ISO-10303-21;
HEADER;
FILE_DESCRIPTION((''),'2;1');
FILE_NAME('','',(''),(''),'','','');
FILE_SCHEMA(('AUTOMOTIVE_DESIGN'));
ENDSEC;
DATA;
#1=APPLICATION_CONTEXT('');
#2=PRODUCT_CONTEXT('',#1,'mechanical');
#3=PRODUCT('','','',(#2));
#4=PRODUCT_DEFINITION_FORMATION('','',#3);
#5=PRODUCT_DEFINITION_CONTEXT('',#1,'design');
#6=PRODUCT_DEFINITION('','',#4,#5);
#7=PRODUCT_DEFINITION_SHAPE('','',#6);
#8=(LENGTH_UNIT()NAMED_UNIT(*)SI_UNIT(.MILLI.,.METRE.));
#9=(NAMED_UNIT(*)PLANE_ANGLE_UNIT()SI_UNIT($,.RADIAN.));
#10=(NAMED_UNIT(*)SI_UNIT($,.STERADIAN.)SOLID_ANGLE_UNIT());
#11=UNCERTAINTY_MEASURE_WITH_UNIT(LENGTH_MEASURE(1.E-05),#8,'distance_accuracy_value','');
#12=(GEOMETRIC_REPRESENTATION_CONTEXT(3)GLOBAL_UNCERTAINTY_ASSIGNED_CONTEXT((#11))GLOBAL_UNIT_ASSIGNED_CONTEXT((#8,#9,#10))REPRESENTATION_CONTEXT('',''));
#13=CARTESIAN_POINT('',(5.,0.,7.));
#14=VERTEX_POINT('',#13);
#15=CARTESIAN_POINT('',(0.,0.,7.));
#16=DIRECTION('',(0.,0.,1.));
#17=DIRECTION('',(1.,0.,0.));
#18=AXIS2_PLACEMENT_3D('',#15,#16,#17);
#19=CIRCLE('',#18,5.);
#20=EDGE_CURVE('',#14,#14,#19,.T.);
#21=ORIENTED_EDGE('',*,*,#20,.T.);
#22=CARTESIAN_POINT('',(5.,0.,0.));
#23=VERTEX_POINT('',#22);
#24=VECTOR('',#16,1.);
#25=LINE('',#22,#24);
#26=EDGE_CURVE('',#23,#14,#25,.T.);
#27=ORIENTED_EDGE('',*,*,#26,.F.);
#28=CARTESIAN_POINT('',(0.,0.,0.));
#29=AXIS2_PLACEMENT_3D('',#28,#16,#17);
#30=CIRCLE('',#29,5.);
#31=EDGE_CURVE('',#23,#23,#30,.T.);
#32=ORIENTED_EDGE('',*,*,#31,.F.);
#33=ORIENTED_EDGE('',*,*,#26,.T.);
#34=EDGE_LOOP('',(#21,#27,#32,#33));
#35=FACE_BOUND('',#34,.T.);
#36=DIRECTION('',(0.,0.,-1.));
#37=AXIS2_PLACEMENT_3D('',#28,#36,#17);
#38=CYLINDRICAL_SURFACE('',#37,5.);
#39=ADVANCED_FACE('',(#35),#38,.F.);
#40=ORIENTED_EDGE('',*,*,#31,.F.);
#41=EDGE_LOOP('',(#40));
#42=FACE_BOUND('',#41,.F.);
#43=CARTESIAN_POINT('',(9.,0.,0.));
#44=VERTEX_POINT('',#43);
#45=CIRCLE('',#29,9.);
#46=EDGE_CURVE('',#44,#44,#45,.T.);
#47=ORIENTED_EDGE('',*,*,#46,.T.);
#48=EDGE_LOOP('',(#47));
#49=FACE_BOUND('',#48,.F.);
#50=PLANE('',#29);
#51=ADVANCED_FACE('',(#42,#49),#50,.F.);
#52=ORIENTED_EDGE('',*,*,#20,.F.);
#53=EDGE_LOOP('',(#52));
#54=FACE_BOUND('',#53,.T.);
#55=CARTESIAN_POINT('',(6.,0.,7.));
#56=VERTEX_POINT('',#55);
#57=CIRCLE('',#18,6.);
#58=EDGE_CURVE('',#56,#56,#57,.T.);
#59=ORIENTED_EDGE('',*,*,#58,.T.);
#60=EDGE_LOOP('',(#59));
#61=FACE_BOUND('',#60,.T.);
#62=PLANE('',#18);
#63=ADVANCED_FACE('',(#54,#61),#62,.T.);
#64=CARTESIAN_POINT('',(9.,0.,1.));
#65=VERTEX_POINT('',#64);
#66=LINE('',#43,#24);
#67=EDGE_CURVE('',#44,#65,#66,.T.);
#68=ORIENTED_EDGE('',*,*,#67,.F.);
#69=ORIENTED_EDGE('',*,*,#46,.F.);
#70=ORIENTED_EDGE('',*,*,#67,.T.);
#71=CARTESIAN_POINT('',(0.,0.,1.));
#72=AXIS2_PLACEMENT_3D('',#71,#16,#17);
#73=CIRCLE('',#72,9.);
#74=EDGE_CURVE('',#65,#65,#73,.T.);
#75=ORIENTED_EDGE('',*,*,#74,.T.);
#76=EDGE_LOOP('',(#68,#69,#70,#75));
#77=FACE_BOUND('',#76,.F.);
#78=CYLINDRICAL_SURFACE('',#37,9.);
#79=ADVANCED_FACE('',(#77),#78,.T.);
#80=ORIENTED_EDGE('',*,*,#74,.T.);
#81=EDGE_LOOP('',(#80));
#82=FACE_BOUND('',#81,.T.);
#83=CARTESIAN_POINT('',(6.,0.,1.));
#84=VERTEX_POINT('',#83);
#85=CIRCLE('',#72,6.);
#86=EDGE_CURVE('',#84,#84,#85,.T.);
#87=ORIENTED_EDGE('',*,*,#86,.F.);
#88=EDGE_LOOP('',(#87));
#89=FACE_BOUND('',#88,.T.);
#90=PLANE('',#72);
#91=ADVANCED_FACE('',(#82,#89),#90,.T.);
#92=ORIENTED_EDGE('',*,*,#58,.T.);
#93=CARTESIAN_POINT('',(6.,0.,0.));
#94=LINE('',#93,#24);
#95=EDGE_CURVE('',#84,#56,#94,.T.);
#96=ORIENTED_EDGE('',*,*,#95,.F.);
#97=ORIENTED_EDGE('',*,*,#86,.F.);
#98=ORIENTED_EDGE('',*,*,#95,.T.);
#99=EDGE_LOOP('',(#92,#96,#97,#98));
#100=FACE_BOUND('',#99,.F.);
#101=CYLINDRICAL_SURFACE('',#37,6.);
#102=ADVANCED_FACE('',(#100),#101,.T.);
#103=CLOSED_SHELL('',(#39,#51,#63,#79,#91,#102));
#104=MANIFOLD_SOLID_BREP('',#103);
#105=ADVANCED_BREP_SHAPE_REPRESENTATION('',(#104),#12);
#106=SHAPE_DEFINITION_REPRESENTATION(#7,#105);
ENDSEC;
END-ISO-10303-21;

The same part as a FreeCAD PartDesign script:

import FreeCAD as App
import Part
import Sketcher

doc = App.newDocument("Part")
body = doc.addObject("PartDesign::Body", "Body")

# Sketch on XY plane
sketch1 = body.newObject("Sketcher::SketchObject", "Sketch")
sketch1.AttachmentSupport = (doc.getObject("XY_Plane"), [""])
sketch1.MapMode = "FlatFace"
sketch1.addGeometry(Part.Circle(App.Vector(0, 0, 0), App.Vector(0, 0, 1), 9), False)
sketch1.addGeometry(Part.Circle(App.Vector(0, 0, 0), App.Vector(0, 0, 1), 6), False)
sketch1.addConstraint(Sketcher.Constraint("Coincident", 0, 3, -1, 1))
sketch1.addConstraint(Sketcher.Constraint("Coincident", 1, 3, -1, 1))
sketch1.addConstraint(Sketcher.Constraint("Diameter", 0, 18.0))
sketch1.addConstraint(Sketcher.Constraint("Diameter", 1, 12.0))
pad1 = body.newObject("PartDesign::Pad", "Pad")
pad1.Profile = sketch1
pad1.Length = 1

# Sketch on XY plane
sketch2 = body.newObject("Sketcher::SketchObject", "Sketch001")
sketch2.AttachmentSupport = (doc.getObject("XY_Plane"), [""])
sketch2.MapMode = "FlatFace"
sketch2.addGeometry(Part.Circle(App.Vector(0, 0, 0), App.Vector(0, 0, 1), 6), False)
sketch2.addGeometry(Part.Circle(App.Vector(0, 0, 0), App.Vector(0, 0, 1), 5), False)
sketch2.addConstraint(Sketcher.Constraint("Coincident", 0, 3, -1, 1))
sketch2.addConstraint(Sketcher.Constraint("Coincident", 1, 3, -1, 1))
sketch2.addConstraint(Sketcher.Constraint("Diameter", 0, 12.0))
sketch2.addConstraint(Sketcher.Constraint("Diameter", 1, 10.0))
pad2 = body.newObject("PartDesign::Pad", "Pad001")
pad2.Profile = sketch2
pad2.Length = 7

doc.recompute()
